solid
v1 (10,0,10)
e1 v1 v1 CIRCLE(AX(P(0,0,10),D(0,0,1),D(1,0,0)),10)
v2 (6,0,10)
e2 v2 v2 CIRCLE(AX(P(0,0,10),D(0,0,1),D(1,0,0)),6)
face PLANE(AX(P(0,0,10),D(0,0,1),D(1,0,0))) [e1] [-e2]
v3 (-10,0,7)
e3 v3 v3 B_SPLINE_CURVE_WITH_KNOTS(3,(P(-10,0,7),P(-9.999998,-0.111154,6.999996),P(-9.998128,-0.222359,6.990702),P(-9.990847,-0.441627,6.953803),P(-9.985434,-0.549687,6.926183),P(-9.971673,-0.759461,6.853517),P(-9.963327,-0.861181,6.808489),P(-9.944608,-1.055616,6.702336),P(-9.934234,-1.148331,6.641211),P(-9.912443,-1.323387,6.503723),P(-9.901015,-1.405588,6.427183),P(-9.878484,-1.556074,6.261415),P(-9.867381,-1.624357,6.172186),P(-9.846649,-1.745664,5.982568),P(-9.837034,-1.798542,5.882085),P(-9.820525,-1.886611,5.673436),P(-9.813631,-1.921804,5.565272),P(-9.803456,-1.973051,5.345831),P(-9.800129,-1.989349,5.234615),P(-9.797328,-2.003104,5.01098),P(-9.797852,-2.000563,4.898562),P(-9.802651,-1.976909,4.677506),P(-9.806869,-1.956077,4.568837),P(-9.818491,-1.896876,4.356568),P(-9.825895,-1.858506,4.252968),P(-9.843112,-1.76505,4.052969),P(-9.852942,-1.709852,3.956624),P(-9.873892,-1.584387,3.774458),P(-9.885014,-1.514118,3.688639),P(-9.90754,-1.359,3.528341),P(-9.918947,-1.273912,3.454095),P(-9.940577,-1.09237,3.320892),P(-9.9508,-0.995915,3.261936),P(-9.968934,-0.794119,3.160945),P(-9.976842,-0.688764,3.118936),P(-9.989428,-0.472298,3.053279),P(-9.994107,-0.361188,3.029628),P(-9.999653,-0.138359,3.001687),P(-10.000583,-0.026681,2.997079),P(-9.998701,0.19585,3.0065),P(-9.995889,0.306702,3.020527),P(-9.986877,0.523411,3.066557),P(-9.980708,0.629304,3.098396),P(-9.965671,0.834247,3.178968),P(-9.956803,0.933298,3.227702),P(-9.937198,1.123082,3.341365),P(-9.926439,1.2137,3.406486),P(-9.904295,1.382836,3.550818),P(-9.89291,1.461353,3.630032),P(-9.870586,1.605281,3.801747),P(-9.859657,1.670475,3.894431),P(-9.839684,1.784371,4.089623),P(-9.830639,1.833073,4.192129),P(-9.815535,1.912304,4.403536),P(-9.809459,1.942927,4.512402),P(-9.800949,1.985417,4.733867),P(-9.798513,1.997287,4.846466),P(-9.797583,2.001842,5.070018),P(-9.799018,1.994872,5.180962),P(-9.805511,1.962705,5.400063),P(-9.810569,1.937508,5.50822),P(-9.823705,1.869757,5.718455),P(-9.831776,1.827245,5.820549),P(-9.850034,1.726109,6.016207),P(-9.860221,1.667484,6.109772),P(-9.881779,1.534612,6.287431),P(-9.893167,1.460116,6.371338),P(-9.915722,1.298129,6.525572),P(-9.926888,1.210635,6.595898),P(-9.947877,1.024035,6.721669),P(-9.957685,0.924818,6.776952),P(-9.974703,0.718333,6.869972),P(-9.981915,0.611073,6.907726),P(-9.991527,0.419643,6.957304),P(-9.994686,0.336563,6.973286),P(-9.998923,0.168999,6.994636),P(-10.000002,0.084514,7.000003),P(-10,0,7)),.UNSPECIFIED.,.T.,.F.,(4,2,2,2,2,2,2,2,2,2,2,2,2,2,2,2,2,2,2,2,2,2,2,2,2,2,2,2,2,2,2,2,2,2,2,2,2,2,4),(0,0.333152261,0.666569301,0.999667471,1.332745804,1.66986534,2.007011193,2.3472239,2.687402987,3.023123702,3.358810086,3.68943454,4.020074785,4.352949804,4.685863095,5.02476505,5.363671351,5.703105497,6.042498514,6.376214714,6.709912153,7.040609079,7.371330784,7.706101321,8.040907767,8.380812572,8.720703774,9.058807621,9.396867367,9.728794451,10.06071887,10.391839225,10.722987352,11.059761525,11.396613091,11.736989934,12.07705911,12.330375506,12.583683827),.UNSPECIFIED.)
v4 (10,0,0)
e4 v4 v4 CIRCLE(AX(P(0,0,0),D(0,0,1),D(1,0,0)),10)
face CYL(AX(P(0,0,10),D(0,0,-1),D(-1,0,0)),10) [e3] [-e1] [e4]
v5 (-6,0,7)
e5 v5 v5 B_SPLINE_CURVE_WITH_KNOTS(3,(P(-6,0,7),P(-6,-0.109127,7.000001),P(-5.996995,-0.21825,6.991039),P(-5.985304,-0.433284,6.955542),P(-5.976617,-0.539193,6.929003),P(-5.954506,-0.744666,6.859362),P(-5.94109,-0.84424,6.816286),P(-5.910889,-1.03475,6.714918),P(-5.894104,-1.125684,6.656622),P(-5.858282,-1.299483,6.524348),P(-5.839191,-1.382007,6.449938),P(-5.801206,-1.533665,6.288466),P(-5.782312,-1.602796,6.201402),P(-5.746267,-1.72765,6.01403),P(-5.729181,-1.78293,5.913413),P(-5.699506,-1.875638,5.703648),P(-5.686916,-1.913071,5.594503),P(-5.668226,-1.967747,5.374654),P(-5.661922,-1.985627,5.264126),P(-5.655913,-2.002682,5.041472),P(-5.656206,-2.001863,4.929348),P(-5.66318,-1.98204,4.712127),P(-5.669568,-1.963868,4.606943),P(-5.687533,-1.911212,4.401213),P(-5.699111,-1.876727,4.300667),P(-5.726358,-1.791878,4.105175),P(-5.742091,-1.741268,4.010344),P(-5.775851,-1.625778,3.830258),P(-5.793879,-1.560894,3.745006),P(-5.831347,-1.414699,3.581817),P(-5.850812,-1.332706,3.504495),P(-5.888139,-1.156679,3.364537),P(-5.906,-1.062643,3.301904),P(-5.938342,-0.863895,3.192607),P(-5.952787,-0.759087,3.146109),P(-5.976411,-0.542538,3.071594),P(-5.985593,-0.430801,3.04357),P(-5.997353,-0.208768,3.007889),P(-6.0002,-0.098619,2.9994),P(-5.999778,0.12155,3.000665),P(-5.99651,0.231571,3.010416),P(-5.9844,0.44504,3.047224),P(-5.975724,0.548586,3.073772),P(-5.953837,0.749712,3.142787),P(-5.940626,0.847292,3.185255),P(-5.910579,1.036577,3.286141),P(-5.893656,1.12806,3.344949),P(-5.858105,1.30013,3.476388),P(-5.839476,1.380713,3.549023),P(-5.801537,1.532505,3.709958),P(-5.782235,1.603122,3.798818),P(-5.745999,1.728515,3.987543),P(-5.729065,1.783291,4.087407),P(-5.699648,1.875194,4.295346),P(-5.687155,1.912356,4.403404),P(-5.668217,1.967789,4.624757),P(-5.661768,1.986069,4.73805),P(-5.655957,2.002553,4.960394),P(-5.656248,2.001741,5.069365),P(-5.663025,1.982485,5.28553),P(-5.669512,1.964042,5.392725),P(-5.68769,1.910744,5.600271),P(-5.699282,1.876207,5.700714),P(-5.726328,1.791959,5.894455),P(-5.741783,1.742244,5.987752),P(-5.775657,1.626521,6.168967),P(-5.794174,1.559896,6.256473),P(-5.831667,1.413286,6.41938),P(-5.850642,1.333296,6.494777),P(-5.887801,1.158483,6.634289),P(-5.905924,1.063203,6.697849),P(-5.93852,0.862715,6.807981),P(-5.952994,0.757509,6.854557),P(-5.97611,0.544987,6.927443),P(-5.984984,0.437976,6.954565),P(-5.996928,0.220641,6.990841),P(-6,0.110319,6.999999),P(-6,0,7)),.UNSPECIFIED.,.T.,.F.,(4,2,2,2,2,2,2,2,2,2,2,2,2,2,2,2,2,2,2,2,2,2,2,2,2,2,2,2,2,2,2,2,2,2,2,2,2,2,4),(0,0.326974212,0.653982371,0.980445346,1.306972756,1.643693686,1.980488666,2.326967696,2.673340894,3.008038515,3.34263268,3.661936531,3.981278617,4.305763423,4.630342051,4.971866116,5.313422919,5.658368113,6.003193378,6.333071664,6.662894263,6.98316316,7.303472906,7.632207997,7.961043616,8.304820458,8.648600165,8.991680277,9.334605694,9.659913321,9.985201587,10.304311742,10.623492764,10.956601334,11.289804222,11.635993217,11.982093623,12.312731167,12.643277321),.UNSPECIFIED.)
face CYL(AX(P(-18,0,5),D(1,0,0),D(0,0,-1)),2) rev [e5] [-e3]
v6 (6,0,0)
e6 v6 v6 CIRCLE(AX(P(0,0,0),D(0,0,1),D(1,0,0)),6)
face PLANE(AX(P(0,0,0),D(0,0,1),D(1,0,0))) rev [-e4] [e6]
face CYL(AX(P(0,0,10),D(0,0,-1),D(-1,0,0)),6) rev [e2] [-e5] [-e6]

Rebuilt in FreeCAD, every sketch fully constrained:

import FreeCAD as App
import Part
import Sketcher
from FreeCAD import Vector
Q = App.Units.Quantity

doc = App.newDocument("Part")
body = doc.addObject("PartDesign::Body", "Body")

sketch1 = body.newObject("Sketcher::SketchObject", "Sketch")
sketch1.AttachmentSupport = (doc.getObject("XY_Plane"), [""])
sketch1.MapMode = "FlatFace"
sketch1.addGeometry([
    Part.Circle(Vector(0, 0, 0), Vector(0, 0, 1), 10),
    Part.Circle(Vector(0, 0, 0), Vector(0, 0, 1), 6),
], False)
sketch1.addConstraint([
    Sketcher.Constraint("Coincident", 0, 3, -1, 1),
    Sketcher.Constraint("Coincident", 1, 3, -1, 1),
    Sketcher.Constraint("Diameter", 0, Q("20 mm")),
    Sketcher.Constraint("Diameter", 1, Q("12 mm")),
])
pad1 = body.newObject("PartDesign::Pad", "Pad")
pad1.Profile = sketch1
pad1.Length = 10

sketch2 = body.newObject("Sketcher::SketchObject", "Sketch001")
sketch2.AttachmentSupport = (doc.getObject("YZ_Plane"), [""])
sketch2.MapMode = "FlatFace"
sketch2.addGeometry(Part.Circle(Vector(0, 5, 0), Vector(0, 0, 1), 2), False)
sketch2.addConstraint([
    Sketcher.Constraint("PointOnObject", 0, 3, -2),
    Sketcher.Constraint("Diameter", 0, Q("4 mm")),
    Sketcher.Constraint("DistanceY", -1, 1, 0, 3, Q("5 mm")),
])
pocket1 = body.newObject("PartDesign::Pocket", "Pocket")
pocket1.Profile = sketch2
pocket1.Length = 18

doc.recompute()
